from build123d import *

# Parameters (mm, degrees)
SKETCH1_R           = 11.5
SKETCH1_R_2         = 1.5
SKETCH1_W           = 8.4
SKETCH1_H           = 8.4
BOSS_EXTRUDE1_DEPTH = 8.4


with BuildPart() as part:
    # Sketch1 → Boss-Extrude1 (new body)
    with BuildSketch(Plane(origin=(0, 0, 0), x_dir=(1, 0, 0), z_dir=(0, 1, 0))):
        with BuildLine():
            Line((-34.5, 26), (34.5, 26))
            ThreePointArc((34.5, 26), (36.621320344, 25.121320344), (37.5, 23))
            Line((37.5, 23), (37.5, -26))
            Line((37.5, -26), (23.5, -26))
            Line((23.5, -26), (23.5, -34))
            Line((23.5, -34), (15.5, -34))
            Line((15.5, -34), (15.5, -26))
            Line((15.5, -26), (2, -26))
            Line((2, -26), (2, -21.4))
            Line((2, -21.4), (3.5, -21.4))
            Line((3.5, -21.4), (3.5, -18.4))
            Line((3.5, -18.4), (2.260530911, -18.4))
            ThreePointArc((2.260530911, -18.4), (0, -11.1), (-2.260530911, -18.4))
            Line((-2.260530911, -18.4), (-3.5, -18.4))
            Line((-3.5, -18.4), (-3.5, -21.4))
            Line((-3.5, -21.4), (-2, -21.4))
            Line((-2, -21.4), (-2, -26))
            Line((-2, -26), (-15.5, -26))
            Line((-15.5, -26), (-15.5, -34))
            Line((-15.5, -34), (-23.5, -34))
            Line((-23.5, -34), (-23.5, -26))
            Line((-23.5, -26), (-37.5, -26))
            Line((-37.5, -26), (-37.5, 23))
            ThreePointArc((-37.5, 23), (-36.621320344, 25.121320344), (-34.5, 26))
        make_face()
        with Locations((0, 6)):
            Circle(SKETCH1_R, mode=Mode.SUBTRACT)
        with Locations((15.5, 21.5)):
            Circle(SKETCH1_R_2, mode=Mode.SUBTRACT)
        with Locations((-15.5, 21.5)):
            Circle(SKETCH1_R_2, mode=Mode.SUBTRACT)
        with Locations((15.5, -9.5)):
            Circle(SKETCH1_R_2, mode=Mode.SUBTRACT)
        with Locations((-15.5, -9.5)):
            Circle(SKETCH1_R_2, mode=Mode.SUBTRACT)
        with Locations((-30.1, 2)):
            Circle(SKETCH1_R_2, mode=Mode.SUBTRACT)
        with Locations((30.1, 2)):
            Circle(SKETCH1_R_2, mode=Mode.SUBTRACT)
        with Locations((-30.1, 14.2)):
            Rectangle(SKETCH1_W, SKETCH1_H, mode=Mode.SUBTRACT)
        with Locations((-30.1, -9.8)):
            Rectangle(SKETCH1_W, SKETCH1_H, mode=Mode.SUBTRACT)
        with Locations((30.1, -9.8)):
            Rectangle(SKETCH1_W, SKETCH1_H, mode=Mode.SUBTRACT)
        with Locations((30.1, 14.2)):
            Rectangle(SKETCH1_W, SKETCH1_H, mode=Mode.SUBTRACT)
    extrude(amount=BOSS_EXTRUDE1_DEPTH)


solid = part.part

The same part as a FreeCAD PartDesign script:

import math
import FreeCAD as App
import Part
import Sketcher
Q = App.Units.Quantity


def add_polygon(sketch, points):
    """Adds a closed chain of lines whose ends are joined by coincident constraints."""
    first, n = sketch.GeometryCount, len(points)
    for a, b in zip(points, points[1:] + points[:1]):
        sketch.addGeometry(Part.LineSegment(App.Vector(*a, 0), App.Vector(*b, 0)), False)
    for i in range(n):
        sketch.addConstraint(Sketcher.Constraint("Coincident", first + i, 2, first + (i + 1) % n, 1))

doc = App.newDocument("Part")
body = doc.addObject("PartDesign::Body", "Body")

sketch1 = body.newObject("Sketcher::SketchObject", "Sketch")
sketch1.AttachmentSupport = (doc.getObject("XZ_Plane"), [""])
sketch1.MapMode = "FlatFace"
sketch1.addGeometry(Part.LineSegment(App.Vector(34.5, -26, 0), App.Vector(-34.5, -26, 0)), False)
sketch1.addGeometry(Part.ArcOfCircle(Part.Circle(App.Vector(-34.5, -23, 0), App.Vector(0, 0, 1), 3), math.radians(180), math.radians(270)), False)
sketch1.addGeometry(Part.LineSegment(App.Vector(-37.5, -23, 0), App.Vector(-37.5, 26, 0)), False)
sketch1.addGeometry(Part.LineSegment(App.Vector(-37.5, 26, 0), App.Vector(-23.5, 26, 0)), False)
sketch1.addGeometry(Part.LineSegment(App.Vector(-23.5, 26, 0), App.Vector(-23.5, 34, 0)), False)
sketch1.addGeometry(Part.LineSegment(App.Vector(-23.5, 34, 0), App.Vector(-15.5, 34, 0)), False)
sketch1.addGeometry(Part.LineSegment(App.Vector(-15.5, 34, 0), App.Vector(-15.5, 26, 0)), False)
sketch1.addGeometry(Part.LineSegment(App.Vector(-15.5, 26, 0), App.Vector(-2, 26, 0)), False)
sketch1.addGeometry(Part.LineSegment(App.Vector(-2, 26, 0), App.Vector(-2, 21.4, 0)), False)
sketch1.addGeometry(Part.LineSegment(App.Vector(-2, 21.4, 0), App.Vector(-3.5, 21.4, 0)), False)
sketch1.addGeometry(Part.LineSegment(App.Vector(-3.5, 21.4, 0), App.Vector(-3.5, 18.4, 0)), False)
sketch1.addGeometry(Part.LineSegment(App.Vector(-3.5, 18.4, 0), App.Vector(-2.260531, 18.4, 0)), False)
sketch1.addGeometry(Part.ArcOfCircle(Part.Circle(App.Vector(0, 15.1, 0), App.Vector(0, 0, 1), 4), math.radians(124.411509), math.radians(415.588491)), False)
sketch1.addGeometry(Part.LineSegment(App.Vector(2.260531, 18.4, 0), App.Vector(3.5, 18.4, 0)), False)
sketch1.addGeometry(Part.LineSegment(App.Vector(3.5, 18.4, 0), App.Vector(3.5, 21.4, 0)), False)
sketch1.addGeometry(Part.LineSegment(App.Vector(3.5, 21.4, 0), App.Vector(2, 21.4, 0)), False)
sketch1.addGeometry(Part.LineSegment(App.Vector(2, 21.4, 0), App.Vector(2, 26, 0)), False)
sketch1.addGeometry(Part.LineSegment(App.Vector(2, 26, 0), App.Vector(15.5, 26, 0)), False)
sketch1.addGeometry(Part.LineSegment(App.Vector(15.5, 26, 0), App.Vector(15.5, 34, 0)), False)
sketch1.addGeometry(Part.LineSegment(App.Vector(15.5, 34, 0), App.Vector(23.5, 34, 0)), False)
sketch1.addGeometry(Part.LineSegment(App.Vector(23.5, 34, 0), App.Vector(23.5, 26, 0)), False)
sketch1.addGeometry(Part.LineSegment(App.Vector(23.5, 26, 0), App.Vector(37.5, 26, 0)), False)
sketch1.addGeometry(Part.LineSegment(App.Vector(37.5, 26, 0), App.Vector(37.5, -23, 0)), False)
sketch1.addGeometry(Part.ArcOfCircle(Part.Circle(App.Vector(34.5, -23, 0), App.Vector(0, 0, 1), 3), math.radians(-90), math.radians(0)), False)
add_polygon(sketch1, [(25.9, 14), (25.9, 5.6), (34.3, 5.6), (34.3, 14)])
sketch1.addGeometry(Part.Circle(App.Vector(15.5, 9.5, 0), App.Vector(0, 0, 1), 1.5), False)
sketch1.addGeometry(Part.Circle(App.Vector(30.1, -2, 0), App.Vector(0, 0, 1), 1.5), False)
sketch1.addGeometry(Part.Circle(App.Vector(-15.5, 9.5, 0), App.Vector(0, 0, 1), 1.5), False)
add_polygon(sketch1, [(-34.3, 14), (-34.3, 5.6), (-25.9, 5.6), (-25.9, 14)])
sketch1.addGeometry(Part.Circle(App.Vector(-30.1, -2, 0), App.Vector(0, 0, 1), 1.5), False)
add_polygon(sketch1, [(25.9, -10), (25.9, -18.4), (34.3, -18.4), (34.3, -10)])
sketch1.addGeometry(Part.Circle(App.Vector(15.5, -21.5, 0), App.Vector(0, 0, 1), 1.5), False)
sketch1.addGeometry(Part.Circle(App.Vector(0, -6, 0), App.Vector(0, 0, 1), 11.5), False)
sketch1.addGeometry(Part.Circle(App.Vector(-15.5, -21.5, 0), App.Vector(0, 0, 1), 1.5), False)
add_polygon(sketch1, [(-34.3, -10), (-34.3, -18.4), (-25.9, -18.4), (-25.9, -10)])
sketch1.addConstraint([
    Sketcher.Constraint("Tangent", 0, 2, 1, 2),
    Sketcher.Constraint("Tangent", 1, 1, 2, 1),
    Sketcher.Constraint("Coincident", 2, 2, 3, 1),
    Sketcher.Constraint("Coincident", 3, 2, 4, 1),
    Sketcher.Constraint("Coincident", 4, 2, 5, 1),
    Sketcher.Constraint("Coincident", 5, 2, 6, 1),
    Sketcher.Constraint("Coincident", 6, 2, 7, 1),
    Sketcher.Constraint("Coincident", 7, 2, 8, 1),
    Sketcher.Constraint("Coincident", 8, 2, 9, 1),
    Sketcher.Constraint("Coincident", 9, 2, 10, 1),
    Sketcher.Constraint("Coincident", 10, 2, 11, 1),
    Sketcher.Constraint("Coincident", 11, 2, 12, 1),
    Sketcher.Constraint("Coincident", 12, 2, 13, 1),
    Sketcher.Constraint("Coincident", 13, 2, 14, 1),
    Sketcher.Constraint("Coincident", 14, 2, 15, 1),
    Sketcher.Constraint("Coincident", 15, 2, 16, 1),
    Sketcher.Constraint("Coincident", 16, 2, 17, 1),
    Sketcher.Constraint("Coincident", 17, 2, 18, 1),
    Sketcher.Constraint("Coincident", 18, 2, 19, 1),
    Sketcher.Constraint("Coincident", 19, 2, 20, 1),
    Sketcher.Constraint("Coincident", 20, 2, 21, 1),
    Sketcher.Constraint("Coincident", 21, 2, 22, 1),
    Sketcher.Constraint("Tangent", 22, 2, 23, 2),
    Sketcher.Constraint("Tangent", 23, 1, 0, 1),
    Sketcher.Constraint("Horizontal", 0),
    Sketcher.Constraint("Vertical", 2),
    Sketcher.Constraint("Horizontal", 3),
    Sketcher.Constraint("Vertical", 4),
    Sketcher.Constraint("Horizontal", 5),
    Sketcher.Constraint("Vertical", 6),
    Sketcher.Constraint("Horizontal", 7),
    Sketcher.Constraint("Vertical", 8),
    Sketcher.Constraint("Horizontal", 9),
    Sketcher.Constraint("Vertical", 10),
    Sketcher.Constraint("Horizontal", 11),
    Sketcher.Constraint("Horizontal", 13),
    Sketcher.Constraint("Vertical", 14),
    Sketcher.Constraint("Horizontal", 15),
    Sketcher.Constraint("Vertical", 16),
    Sketcher.Constraint("Horizontal", 17),
    Sketcher.Constraint("Vertical", 18),
    Sketcher.Constraint("Horizontal", 19),
    Sketcher.Constraint("Vertical", 20),
    Sketcher.Constraint("Horizontal", 21),
    Sketcher.Constraint("Vertical", 22),
    Sketcher.Constraint("Vertical", 24),
    Sketcher.Constraint("Horizontal", 25),
    Sketcher.Constraint("Vertical", 26),
    Sketcher.Constraint("Horizontal", 27),
    Sketcher.Constraint("Vertical", 31),
    Sketcher.Constraint("Horizontal", 32),
    Sketcher.Constraint("Vertical", 33),
    Sketcher.Constraint("Horizontal", 34),
    Sketcher.Constraint("Vertical", 36),
    Sketcher.Constraint("Horizontal", 37),
    Sketcher.Constraint("Vertical", 38),
    Sketcher.Constraint("Horizontal", 39),
    Sketcher.Constraint("Vertical", 43),
    Sketcher.Constraint("Horizontal", 44),
    Sketcher.Constraint("Vertical", 45),
    Sketcher.Constraint("Horizontal", 46),
    Sketcher.Constraint("Equal", 1, 23),
    Sketcher.Constraint("Equal", 28, 29),
    Sketcher.Constraint("Equal", 29, 30),
    Sketcher.Constraint("Equal", 30, 35),
    Sketcher.Constraint("Equal", 35, 40),
    Sketcher.Constraint("Equal", 40, 42),
    Sketcher.Constraint("Symmetric", 28, 3, 30, 3, -2),
    Sketcher.Constraint("Symmetric", 29, 3, 35, 3, -2),
    Sketcher.Constraint("Symmetric", 40, 3, 42, 3, -2),
    Sketcher.Constraint("Symmetric", 11, 2, 12, 2, -2),
    Sketcher.Constraint("Symmetric", 9, 2, 14, 2, -2),
    Sketcher.Constraint("Symmetric", 7, 2, 16, 2, -2),
    Sketcher.Constraint("Symmetric", 5, 2, 18, 2, -2),
    Sketcher.Constraint("Symmetric", 3, 2, 20, 2, -2),
    Sketcher.Constraint("Symmetric", 25, 2, 31, 2, -2),
    Sketcher.Constraint("Symmetric", 27, 2, 33, 2, -2),
    Sketcher.Constraint("Symmetric", 37, 2, 43, 2, -2),
    Sketcher.Constraint("Symmetric", 39, 2, 45, 2, -2),
    Sketcher.Constraint("PointOnObject", 41, 3, -2),
    Sketcher.Constraint("Horizontal", 3, 2, 6, 2),
    Sketcher.Constraint("Vertical", 28, 3, 40, 3),
    Sketcher.Constraint("Vertical", 42, 3, 5, 2),
    Sketcher.Constraint("Vertical", 27, 2, 36, 2),
    Sketcher.Constraint("Vertical", 26, 2, 37, 2),
    Sketcher.Constraint("Equal", 3, 21),
    Sketcher.Constraint("Equal", 19, 4),
    Sketcher.Constraint("Equal", 46, 24),
    Sketcher.Constraint("Equal", 33, 36),
    Sketcher.Constraint("Diameter", 28, Q("3 mm")),
    Sketcher.Constraint("Diameter", 41, Q("23 mm")),
    Sketcher.Constraint("Radius", 1, Q("3 mm")),
    Sketcher.Constraint("Radius", 12, Q("4 mm")),
    Sketcher.Constraint("DistanceX", 0, 2, 0, 1, Q("69 mm")),
    Sketcher.Constraint("DistanceX", 3, 1, 3, 2, Q("14 mm")),
    Sketcher.Constraint("DistanceX", 5, 1, 5, 2, Q("8 mm")),
    Sketcher.Constraint("DistanceY", 2, 1, 2, 2, Q("49 mm")),
    Sketcher.Constraint("DistanceY", 10, 2, 10, 1, Q("3 mm")),
    Sketcher.Constraint("DistanceX", 7, 1, 7, 2, Q("13.5 mm")),
    Sketcher.Constraint("DistanceX", 9, 2, 9, 1, Q("1.5 mm")),
    Sketcher.Constraint("DistanceX", 25, 1, 25, 2, Q("8.4 mm")),
    Sketcher.Constraint("DistanceY", 8, 2, 8, 1, Q("4.6 mm")),
    Sketcher.Constraint("DistanceY", 1, 3, -1, 1, Q("23 mm")),
    Sketcher.Constraint("DistanceY", 29, 3, -1, 1, Q("2 mm")),
    Sketcher.Constraint("DistanceY", 41, 3, -1, 1, Q("6 mm")),
    Sketcher.Constraint("DistanceY", -1, 1, 26, 2, Q("14 mm")),
    Sketcher.Constraint("DistanceY", 38, 2, -1, 1, Q("10 mm")),
    Sketcher.Constraint("DistanceY", 40, 3, 28, 3, Q("31 mm")),
    Sketcher.Constraint("DistanceY", -1, 1, 12, 3, Q("15.1 mm")),
    Sketcher.Constraint("DistanceY", -1, 1, 28, 3, Q("9.5 mm")),
    Sketcher.Constraint("DistanceX", -1, 1, 29, 3, Q("30.1 mm")),
    Sketcher.Constraint("DistanceX", -1, 1, 24, 2, Q("25.9 mm")),
])
pad1 = body.newObject("PartDesign::Pad", "Pad")
pad1.Profile = sketch1
pad1.Length = 8.4
pad1.Reversed = True

doc.recompute()
